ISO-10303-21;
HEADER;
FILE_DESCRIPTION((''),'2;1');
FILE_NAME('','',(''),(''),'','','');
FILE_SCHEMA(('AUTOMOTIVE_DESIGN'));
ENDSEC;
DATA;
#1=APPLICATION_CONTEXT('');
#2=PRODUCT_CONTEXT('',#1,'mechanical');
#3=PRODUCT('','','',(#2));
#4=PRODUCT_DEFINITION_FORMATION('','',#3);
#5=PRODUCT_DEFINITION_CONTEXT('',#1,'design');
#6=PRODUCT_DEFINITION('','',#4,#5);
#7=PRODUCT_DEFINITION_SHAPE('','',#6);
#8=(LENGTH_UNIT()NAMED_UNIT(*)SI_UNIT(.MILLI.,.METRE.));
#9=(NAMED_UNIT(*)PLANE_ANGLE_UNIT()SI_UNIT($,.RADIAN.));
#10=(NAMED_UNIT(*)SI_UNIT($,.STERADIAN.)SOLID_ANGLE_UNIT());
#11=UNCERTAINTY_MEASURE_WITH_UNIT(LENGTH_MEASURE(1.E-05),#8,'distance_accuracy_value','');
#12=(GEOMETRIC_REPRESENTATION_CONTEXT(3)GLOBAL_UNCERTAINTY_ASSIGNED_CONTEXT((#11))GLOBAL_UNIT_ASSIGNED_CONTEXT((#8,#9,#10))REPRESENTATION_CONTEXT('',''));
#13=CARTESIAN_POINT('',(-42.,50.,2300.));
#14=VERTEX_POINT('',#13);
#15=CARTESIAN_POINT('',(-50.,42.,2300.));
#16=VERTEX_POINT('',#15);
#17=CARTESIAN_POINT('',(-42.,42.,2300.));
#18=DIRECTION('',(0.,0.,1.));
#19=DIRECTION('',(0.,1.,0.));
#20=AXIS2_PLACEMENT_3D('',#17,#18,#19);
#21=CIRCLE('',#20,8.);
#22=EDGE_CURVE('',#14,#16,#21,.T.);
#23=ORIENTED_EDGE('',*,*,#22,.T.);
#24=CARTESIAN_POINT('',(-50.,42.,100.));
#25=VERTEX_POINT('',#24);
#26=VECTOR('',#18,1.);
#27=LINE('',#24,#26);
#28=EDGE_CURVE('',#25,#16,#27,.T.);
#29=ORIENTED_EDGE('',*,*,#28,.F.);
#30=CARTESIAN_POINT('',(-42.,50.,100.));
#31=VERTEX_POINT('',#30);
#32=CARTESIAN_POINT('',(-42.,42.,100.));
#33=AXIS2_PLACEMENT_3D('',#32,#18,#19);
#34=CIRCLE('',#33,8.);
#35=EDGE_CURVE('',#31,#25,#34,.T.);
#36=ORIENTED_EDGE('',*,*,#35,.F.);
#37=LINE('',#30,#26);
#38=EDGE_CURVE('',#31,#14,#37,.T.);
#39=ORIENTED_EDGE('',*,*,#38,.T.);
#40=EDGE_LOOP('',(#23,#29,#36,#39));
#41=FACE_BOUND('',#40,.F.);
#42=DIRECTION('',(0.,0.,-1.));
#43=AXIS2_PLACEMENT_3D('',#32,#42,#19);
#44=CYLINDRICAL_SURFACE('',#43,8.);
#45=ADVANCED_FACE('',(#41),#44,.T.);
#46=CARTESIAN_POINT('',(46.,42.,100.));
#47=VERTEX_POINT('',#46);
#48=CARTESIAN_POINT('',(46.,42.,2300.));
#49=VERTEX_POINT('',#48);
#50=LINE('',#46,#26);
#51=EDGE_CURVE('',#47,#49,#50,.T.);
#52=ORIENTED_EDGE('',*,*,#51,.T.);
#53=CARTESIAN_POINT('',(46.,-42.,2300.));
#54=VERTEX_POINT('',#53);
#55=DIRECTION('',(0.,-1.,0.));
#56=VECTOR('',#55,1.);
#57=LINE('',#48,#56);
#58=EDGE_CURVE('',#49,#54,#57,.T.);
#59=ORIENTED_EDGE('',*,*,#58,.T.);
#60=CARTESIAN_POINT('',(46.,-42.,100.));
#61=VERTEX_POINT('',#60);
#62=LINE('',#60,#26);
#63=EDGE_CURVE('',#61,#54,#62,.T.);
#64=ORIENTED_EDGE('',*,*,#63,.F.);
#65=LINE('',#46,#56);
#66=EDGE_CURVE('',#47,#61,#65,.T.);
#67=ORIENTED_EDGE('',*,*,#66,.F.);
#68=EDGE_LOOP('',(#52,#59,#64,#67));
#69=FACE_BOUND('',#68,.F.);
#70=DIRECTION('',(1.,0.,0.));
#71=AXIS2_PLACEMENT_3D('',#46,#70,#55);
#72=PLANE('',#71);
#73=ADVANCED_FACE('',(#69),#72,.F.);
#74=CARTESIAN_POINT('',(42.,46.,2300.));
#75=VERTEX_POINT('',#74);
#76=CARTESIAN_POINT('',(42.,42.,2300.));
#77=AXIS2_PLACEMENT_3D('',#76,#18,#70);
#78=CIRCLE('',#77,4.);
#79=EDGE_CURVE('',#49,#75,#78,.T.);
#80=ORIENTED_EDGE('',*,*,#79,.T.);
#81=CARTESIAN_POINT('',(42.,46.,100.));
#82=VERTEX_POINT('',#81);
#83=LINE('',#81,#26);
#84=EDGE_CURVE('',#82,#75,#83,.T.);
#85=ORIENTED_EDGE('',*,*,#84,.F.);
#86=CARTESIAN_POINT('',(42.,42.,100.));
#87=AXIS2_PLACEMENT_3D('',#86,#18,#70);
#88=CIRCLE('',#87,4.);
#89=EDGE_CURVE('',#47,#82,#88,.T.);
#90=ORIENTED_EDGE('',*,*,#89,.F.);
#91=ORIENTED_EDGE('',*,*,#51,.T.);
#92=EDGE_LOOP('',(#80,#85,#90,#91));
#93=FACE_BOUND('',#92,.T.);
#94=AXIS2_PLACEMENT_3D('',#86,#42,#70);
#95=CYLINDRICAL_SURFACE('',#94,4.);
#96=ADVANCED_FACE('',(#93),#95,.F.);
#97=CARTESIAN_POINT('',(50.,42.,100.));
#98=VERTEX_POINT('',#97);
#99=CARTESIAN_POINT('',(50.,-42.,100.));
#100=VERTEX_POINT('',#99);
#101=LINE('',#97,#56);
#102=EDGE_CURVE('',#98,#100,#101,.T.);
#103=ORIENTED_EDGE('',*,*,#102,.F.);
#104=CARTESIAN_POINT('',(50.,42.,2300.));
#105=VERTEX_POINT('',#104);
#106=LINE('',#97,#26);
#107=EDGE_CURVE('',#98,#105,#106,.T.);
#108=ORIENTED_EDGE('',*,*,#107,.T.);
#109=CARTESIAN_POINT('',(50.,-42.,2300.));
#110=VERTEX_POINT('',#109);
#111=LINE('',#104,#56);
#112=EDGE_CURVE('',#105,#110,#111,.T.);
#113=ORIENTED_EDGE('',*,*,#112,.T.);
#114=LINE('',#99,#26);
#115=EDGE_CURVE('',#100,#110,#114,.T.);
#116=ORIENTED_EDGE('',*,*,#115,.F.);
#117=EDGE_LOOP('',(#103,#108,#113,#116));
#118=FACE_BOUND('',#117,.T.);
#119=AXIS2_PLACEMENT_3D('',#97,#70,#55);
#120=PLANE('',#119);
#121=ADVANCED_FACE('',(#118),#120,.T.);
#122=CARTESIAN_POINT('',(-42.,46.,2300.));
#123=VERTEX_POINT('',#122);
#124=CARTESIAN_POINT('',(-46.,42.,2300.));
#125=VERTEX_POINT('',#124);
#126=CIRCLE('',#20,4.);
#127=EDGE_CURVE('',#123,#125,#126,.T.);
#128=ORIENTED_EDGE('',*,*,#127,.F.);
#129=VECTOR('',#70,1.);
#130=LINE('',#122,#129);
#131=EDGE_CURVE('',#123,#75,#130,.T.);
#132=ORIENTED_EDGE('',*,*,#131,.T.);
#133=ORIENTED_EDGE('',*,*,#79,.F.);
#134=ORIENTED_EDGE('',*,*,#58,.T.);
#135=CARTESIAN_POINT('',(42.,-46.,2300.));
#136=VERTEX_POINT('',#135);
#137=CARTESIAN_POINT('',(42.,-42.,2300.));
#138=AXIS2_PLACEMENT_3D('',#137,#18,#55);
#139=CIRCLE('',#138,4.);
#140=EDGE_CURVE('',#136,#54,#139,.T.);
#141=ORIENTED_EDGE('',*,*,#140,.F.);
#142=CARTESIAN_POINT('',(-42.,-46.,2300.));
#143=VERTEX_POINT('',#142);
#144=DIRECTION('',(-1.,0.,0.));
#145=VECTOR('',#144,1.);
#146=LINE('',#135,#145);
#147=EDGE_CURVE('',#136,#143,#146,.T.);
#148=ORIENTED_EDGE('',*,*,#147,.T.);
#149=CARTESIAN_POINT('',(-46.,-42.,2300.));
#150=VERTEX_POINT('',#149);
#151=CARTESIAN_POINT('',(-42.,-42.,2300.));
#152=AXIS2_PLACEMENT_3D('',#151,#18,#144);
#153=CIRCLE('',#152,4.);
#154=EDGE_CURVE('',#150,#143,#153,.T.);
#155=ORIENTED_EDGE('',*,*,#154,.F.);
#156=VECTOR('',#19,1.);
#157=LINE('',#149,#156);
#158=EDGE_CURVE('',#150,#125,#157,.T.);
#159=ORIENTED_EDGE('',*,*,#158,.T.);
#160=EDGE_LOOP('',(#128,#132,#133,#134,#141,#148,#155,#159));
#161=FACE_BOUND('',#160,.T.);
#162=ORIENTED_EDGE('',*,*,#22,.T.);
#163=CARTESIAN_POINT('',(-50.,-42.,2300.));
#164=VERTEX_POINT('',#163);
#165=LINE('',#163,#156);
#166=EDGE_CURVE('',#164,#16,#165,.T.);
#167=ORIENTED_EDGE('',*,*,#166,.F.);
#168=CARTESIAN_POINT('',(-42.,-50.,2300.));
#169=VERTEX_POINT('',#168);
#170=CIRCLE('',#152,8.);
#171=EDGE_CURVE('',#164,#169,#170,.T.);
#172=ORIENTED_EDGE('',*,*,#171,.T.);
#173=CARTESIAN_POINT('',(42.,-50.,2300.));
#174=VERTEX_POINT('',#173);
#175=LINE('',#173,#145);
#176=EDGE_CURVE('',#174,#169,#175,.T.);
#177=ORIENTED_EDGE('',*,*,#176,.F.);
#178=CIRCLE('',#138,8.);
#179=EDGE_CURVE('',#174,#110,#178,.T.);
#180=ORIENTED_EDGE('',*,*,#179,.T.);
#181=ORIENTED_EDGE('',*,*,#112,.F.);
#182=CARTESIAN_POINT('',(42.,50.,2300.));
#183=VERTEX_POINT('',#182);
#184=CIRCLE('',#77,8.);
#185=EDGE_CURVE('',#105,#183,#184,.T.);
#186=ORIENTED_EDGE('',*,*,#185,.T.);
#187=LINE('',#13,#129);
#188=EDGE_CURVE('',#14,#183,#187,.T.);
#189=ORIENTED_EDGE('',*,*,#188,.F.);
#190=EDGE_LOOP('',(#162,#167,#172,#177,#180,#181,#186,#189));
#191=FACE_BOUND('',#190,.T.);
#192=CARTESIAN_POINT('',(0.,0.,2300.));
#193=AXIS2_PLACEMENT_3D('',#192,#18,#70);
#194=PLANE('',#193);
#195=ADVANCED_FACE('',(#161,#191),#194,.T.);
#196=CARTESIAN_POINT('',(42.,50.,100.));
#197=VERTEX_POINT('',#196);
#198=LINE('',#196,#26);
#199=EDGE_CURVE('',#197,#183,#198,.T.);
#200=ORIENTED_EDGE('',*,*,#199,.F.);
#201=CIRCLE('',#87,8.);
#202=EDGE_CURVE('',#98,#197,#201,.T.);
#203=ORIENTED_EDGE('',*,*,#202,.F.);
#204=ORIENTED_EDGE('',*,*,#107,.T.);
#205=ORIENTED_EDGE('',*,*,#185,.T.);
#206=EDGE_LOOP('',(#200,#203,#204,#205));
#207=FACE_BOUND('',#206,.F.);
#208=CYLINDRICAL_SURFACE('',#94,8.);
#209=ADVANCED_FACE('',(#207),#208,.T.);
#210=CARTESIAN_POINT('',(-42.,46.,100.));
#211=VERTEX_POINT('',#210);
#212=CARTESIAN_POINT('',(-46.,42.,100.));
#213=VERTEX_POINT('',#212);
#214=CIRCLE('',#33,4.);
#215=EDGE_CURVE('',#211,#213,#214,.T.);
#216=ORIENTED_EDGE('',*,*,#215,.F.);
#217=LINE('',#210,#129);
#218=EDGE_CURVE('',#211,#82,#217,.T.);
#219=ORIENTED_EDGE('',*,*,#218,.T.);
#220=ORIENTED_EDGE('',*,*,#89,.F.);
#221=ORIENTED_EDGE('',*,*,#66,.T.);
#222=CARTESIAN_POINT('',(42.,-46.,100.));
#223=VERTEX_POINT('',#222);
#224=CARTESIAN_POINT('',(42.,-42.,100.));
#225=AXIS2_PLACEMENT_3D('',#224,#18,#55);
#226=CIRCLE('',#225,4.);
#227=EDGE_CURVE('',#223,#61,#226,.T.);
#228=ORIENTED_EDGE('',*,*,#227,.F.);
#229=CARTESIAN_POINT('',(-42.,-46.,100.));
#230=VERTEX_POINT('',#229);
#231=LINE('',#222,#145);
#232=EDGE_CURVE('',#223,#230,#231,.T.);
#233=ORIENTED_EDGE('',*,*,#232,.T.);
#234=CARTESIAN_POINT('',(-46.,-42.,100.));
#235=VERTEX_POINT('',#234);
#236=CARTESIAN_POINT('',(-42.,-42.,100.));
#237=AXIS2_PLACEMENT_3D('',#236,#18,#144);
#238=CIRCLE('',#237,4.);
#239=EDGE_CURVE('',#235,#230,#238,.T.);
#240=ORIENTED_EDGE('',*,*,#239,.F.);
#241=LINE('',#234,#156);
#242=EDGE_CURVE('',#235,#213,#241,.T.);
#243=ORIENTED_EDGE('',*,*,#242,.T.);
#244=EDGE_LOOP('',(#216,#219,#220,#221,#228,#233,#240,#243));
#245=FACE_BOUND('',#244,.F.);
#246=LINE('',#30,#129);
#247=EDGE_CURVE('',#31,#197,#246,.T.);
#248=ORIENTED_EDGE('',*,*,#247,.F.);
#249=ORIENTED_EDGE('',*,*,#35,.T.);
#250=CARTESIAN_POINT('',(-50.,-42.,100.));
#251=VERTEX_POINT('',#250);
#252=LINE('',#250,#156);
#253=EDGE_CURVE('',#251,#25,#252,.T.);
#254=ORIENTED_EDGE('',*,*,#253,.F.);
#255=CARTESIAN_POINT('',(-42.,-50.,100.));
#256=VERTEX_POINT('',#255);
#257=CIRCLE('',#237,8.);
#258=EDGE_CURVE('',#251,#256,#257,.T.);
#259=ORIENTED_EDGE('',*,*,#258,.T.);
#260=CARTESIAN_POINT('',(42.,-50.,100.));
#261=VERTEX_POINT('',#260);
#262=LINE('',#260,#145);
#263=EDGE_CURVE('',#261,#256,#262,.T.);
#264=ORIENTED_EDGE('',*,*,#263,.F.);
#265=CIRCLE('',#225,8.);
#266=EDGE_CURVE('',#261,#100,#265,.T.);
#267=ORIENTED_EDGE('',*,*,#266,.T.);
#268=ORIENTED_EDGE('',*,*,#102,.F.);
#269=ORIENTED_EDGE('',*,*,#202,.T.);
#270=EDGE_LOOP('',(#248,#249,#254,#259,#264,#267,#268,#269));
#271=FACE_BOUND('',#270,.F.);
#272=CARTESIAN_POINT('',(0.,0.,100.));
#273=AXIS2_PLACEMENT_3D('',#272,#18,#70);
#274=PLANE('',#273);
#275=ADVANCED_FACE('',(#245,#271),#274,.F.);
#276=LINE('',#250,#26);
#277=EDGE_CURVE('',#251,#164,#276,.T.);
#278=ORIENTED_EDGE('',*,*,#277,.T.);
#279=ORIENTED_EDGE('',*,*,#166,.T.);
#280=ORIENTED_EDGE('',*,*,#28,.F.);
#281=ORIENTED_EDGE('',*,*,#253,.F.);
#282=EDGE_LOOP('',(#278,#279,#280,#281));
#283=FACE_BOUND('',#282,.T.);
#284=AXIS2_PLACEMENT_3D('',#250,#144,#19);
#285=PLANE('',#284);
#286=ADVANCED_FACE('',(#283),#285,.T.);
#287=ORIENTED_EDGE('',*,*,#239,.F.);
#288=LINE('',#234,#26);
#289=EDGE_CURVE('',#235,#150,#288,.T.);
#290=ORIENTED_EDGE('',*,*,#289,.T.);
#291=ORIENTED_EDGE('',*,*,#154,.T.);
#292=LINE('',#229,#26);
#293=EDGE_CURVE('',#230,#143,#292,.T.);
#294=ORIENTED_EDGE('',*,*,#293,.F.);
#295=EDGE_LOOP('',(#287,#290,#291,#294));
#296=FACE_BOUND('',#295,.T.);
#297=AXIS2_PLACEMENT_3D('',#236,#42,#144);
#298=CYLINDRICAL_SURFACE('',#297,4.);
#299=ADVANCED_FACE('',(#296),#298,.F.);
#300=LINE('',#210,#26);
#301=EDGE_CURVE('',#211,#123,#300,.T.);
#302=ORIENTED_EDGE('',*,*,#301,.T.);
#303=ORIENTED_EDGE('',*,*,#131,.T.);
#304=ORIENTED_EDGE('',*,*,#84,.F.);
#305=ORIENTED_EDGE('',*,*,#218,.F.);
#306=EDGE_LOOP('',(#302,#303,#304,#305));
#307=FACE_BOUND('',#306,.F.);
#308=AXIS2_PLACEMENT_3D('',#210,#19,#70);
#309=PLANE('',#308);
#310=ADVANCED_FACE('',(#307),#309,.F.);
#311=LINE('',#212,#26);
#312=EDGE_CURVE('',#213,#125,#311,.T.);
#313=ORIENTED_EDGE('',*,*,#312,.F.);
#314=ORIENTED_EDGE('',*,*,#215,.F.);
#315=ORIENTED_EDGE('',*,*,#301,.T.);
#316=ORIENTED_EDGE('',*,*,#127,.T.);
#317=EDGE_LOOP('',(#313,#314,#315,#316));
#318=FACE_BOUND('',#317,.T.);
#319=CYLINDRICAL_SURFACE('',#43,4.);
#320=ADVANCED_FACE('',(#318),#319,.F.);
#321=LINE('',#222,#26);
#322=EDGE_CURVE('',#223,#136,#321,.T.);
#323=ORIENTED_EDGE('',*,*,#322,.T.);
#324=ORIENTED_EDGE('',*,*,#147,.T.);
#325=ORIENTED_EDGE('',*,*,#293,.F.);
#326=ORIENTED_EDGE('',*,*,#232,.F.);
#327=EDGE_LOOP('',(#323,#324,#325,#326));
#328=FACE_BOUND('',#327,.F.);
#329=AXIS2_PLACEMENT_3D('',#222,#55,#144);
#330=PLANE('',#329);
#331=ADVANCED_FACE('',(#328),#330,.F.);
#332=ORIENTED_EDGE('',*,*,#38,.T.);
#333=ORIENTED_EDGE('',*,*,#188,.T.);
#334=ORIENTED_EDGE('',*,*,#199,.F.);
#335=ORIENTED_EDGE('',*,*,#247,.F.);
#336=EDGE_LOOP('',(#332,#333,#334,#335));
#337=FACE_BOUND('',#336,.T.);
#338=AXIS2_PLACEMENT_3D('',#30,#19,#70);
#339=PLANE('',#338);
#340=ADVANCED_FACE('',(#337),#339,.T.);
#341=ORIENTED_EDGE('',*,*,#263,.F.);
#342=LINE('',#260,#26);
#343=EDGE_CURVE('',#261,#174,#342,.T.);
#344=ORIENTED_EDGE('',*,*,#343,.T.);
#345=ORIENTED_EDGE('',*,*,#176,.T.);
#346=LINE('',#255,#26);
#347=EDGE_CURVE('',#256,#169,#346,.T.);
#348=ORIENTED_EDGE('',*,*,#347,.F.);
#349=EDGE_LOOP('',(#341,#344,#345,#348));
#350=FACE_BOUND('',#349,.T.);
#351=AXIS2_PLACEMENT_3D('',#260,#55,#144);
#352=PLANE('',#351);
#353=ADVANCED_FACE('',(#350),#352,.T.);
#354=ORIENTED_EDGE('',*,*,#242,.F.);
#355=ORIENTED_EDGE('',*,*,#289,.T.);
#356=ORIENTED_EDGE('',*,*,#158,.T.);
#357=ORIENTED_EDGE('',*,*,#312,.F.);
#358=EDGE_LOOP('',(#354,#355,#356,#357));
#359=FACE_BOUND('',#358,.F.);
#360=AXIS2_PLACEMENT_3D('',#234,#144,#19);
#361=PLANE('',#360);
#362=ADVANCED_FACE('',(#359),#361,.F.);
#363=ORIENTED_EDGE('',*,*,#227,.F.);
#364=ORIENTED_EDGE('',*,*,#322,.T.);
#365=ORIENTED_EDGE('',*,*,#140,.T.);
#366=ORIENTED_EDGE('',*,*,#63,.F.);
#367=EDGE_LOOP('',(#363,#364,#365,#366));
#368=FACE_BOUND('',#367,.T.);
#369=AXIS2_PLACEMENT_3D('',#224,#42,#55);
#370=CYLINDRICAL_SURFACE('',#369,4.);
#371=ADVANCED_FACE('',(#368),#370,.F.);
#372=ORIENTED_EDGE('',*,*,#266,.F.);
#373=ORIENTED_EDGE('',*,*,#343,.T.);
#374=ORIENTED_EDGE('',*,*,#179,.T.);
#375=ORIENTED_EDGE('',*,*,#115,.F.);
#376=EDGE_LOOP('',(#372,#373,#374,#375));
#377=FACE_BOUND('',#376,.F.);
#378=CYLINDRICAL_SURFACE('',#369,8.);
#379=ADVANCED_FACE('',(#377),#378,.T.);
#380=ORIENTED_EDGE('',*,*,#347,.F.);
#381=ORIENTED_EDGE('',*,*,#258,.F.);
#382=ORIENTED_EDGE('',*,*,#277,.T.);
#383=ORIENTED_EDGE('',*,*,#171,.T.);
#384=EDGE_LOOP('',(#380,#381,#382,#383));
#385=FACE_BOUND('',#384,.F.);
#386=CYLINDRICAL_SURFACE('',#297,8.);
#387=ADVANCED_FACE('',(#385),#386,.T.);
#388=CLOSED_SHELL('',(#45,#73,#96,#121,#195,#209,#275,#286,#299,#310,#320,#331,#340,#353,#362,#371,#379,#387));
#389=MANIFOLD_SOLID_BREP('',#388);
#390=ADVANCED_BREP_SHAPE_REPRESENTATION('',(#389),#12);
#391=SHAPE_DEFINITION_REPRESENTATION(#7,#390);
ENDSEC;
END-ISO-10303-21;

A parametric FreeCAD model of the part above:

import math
import FreeCAD as App
import Part
import Sketcher
from FreeCAD import Vector

doc = App.newDocument("Part")
params = doc.addObject("Spreadsheet::Sheet", "Params")
for row, (alias, value) in enumerate([
    ("sketch1_radius", "8 mm"),
    ("sketch1_radius2", "4 mm"),
    ("pad1_length", "2200 mm"),
], start=1):
    params.set(f"A{row}", alias)
    params.set(f"B{row}", "=" + value)
    params.setAlias(f"B{row}", alias)

body = doc.addObject("PartDesign::Body", "Body")

# Sketch on XY plane
sketch1 = body.newObject("Sketcher::SketchObject", "Sketch")
sketch1.AttachmentSupport = (doc.getObject("XY_Plane"), [""])
sketch1.MapMode = "FlatFace"
sketch1.AttachmentOffset = App.Placement(Vector(0, 0, 100), App.Rotation())
sketch1.addGeometry([
    Part.LineSegment(Vector(-50, 42, 0), Vector(-50, -42, 0)),  # 0
    Part.ArcOfCircle(Part.Circle(Vector(-42, -42, 0), Vector(0, 0, 1), 8), math.radians(180), math.radians(270)),  # 1
    Part.LineSegment(Vector(-42, -50, 0), Vector(42, -50, 0)),  # 2
    Part.ArcOfCircle(Part.Circle(Vector(42, -42, 0), Vector(0, 0, 1), 8), math.radians(-90), math.radians(0)),  # 3
    Part.LineSegment(Vector(50, -42, 0), Vector(50, 42, 0)),  # 4
    Part.ArcOfCircle(Part.Circle(Vector(42, 42, 0), Vector(0, 0, 1), 8), math.radians(0), math.radians(90)),  # 5
    Part.LineSegment(Vector(42, 50, 0), Vector(-42, 50, 0)),  # 6
    Part.ArcOfCircle(Part.Circle(Vector(-42, 42, 0), Vector(0, 0, 1), 8), math.radians(90), math.radians(180)),  # 7
    Part.ArcOfCircle(Part.Circle(Vector(-42, 42, 0), Vector(0, 0, 1), 4), math.radians(90), math.radians(180)),  # 8
    Part.LineSegment(Vector(-42, 46, 0), Vector(42, 46, 0)),  # 9
    Part.ArcOfCircle(Part.Circle(Vector(42, 42, 0), Vector(0, 0, 1), 4), math.radians(0), math.radians(90)),  # 10
    Part.LineSegment(Vector(46, 42, 0), Vector(46, -42, 0)),  # 11
    Part.ArcOfCircle(Part.Circle(Vector(42, -42, 0), Vector(0, 0, 1), 4), math.radians(-90), math.radians(0)),  # 12
    Part.LineSegment(Vector(42, -46, 0), Vector(-42, -46, 0)),  # 13
    Part.ArcOfCircle(Part.Circle(Vector(-42, -42, 0), Vector(0, 0, 1), 4), math.radians(180), math.radians(270)),  # 14
    Part.LineSegment(Vector(-46, -42, 0), Vector(-46, 42, 0)),  # 15
], False)
sketch1.addConstraint([
    Sketcher.Constraint("Tangent", 0, 2, 1, 1),
    Sketcher.Constraint("Tangent", 1, 2, 2, 1),
    Sketcher.Constraint("Tangent", 2, 2, 3, 1),
    Sketcher.Constraint("Tangent", 3, 2, 4, 1),
    Sketcher.Constraint("Tangent", 4, 2, 5, 1),
    Sketcher.Constraint("Tangent", 5, 2, 6, 1),
    Sketcher.Constraint("Tangent", 6, 2, 7, 1),
    Sketcher.Constraint("Tangent", 7, 2, 0, 1),
    Sketcher.Constraint("Tangent", 8, 1, 9, 1),
    Sketcher.Constraint("Tangent", 9, 2, 10, 2),
    Sketcher.Constraint("Tangent", 10, 1, 11, 1),
    Sketcher.Constraint("Tangent", 11, 2, 12, 2),
    Sketcher.Constraint("Tangent", 12, 1, 13, 1),
    Sketcher.Constraint("Tangent", 13, 2, 14, 2),
    Sketcher.Constraint("Tangent", 14, 1, 15, 1),
    Sketcher.Constraint("Tangent", 15, 2, 8, 2),
    Sketcher.Constraint("Vertical", 0),
    Sketcher.Constraint("Horizontal", 2),
    Sketcher.Constraint("Vertical", 4),
    Sketcher.Constraint("Horizontal", 6),
    Sketcher.Constraint("Horizontal", 9),
    Sketcher.Constraint("Vertical", 11),
    Sketcher.Constraint("Horizontal", 13),
    Sketcher.Constraint("Vertical", 15),
    Sketcher.Constraint("Coincident", 8, 3, 7, 3),
    Sketcher.Constraint("Coincident", 10, 3, 5, 3),
    Sketcher.Constraint("Coincident", 12, 3, 3, 3),
    Sketcher.Constraint("Equal", 1, 3),
    Sketcher.Constraint("Equal", 3, 5),
    Sketcher.Constraint("Equal", 5, 7),
    Sketcher.Constraint("Equal", 12, 14),
    Sketcher.Constraint("Symmetric", 1, 3, 5, 3, -1, 1),
    Sketcher.Constraint("Equal", 13, 0),
    Sketcher.Constraint("Radius", 1, 8.0),
    Sketcher.Constraint("Radius", 8, 4.0),
    Sketcher.Constraint("DistanceX", 0, 2, -1, 1, 50.0),
])
sketch1.setExpression("Constraints[33]", "Params.sketch1_radius")
sketch1.setExpression("Constraints[34]", "Params.sketch1_radius2")
pad1 = body.newObject("PartDesign::Pad", "Pad")
pad1.Profile = sketch1
pad1.setExpression("Length", "Params.pad1_length")

doc.recompute()
